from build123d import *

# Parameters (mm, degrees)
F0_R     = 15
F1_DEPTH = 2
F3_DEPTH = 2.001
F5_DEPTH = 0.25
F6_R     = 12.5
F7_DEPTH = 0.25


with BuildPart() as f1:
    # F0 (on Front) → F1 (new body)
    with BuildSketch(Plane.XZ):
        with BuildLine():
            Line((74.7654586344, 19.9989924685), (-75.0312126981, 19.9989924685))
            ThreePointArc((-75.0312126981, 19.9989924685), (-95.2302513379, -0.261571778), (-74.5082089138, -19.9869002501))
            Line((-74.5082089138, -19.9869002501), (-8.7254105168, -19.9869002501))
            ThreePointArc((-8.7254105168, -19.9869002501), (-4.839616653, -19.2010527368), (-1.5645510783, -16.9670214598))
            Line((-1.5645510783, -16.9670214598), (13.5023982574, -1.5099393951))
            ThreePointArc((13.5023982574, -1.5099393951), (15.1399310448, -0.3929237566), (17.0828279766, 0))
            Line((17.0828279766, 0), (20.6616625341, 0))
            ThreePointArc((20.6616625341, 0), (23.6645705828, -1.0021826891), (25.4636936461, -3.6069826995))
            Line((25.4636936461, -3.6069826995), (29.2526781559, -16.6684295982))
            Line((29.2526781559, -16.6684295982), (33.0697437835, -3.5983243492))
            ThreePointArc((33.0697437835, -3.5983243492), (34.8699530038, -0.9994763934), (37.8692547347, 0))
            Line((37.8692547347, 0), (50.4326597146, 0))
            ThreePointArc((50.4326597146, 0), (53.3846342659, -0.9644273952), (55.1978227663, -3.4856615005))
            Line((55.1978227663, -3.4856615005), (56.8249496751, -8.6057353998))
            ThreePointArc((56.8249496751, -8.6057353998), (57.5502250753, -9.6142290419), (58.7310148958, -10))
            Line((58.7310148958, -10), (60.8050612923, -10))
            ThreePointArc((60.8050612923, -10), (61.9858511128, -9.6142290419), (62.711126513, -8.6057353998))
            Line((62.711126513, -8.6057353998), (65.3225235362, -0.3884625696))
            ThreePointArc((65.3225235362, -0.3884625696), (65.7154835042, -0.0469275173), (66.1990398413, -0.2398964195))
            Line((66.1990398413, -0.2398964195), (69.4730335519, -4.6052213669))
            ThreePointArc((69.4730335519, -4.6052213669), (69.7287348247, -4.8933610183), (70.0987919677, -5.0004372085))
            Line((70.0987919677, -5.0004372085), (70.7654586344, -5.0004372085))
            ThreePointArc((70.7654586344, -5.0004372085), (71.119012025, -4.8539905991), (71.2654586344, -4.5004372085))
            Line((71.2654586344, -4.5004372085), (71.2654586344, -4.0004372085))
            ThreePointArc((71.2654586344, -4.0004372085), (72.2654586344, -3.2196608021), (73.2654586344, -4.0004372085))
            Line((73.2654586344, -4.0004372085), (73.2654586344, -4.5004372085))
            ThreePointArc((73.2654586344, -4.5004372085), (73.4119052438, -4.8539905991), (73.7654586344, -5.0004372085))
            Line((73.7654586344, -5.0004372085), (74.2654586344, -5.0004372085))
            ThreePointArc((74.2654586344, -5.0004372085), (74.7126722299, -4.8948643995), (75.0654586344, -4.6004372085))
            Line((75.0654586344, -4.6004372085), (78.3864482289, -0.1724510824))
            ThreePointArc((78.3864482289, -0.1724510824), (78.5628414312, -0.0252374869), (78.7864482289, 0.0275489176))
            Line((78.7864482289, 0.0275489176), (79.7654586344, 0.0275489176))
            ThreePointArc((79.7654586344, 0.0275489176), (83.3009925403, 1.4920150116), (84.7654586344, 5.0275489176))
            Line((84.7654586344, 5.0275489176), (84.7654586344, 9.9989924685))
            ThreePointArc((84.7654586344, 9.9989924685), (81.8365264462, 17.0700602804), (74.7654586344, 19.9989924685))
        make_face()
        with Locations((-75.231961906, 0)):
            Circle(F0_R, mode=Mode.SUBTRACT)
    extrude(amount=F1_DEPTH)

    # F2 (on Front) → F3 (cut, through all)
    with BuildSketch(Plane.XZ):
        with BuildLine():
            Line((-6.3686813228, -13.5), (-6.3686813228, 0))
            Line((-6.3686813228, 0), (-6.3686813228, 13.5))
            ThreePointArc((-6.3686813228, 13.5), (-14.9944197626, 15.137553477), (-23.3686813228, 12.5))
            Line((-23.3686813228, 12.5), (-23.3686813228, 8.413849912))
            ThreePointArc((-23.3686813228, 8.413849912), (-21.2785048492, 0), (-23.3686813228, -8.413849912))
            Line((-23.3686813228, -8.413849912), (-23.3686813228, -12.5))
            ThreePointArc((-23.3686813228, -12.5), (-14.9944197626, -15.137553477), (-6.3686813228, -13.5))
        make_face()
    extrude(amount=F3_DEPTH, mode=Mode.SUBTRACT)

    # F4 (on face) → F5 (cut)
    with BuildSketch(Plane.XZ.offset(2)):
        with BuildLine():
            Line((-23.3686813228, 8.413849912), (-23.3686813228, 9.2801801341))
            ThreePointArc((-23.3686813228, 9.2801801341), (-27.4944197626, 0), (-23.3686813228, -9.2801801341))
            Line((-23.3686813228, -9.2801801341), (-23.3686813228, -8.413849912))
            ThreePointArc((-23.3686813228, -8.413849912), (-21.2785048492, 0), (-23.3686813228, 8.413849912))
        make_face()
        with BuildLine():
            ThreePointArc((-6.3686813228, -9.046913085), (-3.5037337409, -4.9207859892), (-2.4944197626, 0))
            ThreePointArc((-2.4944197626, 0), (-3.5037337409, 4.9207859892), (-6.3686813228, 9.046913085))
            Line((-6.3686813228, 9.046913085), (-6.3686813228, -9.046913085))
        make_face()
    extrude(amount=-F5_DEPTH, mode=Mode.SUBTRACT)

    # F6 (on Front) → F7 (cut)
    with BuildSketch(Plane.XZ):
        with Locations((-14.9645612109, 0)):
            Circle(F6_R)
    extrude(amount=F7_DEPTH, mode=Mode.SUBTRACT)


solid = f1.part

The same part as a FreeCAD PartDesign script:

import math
import FreeCAD as App
import Part
import Sketcher

doc = App.newDocument("Part")
params = doc.addObject("Spreadsheet::Sheet", "Params")
for row, (alias, value) in enumerate([
    ("sketch1_diameter", "30 mm"),
    ("sketch1_radius", "20 mm"),
    ("sketch1_radius2", "10 mm"),
    ("sketch1_radius3", "5 mm"),
    ("sketch1_radius4", "2 mm"),
    ("pad1_length", "2 mm"),
    ("sketch2_radius", "18 mm"),
    ("sketch2_height", "27 mm"),
    ("sketch3_radius", "12.5 mm"),
    ("pocket2_length", "0.25 mm"),
    ("sketch4_diameter", "25 mm"),
    ("pocket3_length", "0.25 mm"),
], start=1):
    params.set(f"A{row}", alias)
    params.set(f"B{row}", "=" + value)
    params.setAlias(f"B{row}", alias)

body = doc.addObject("PartDesign::Body", "Body")

# Sketch on XZ plane
sketch1 = doc.addObject("Sketcher::SketchObject", "Sketch")
body.addObject(sketch1)
sketch1.AttachmentSupport = (doc.XZ_Plane, [""])
sketch1.MapMode = "FlatFace"
sketch1.addGeometry([
    Part.LineSegment(App.Vector(74.77, 20, 0), App.Vector(-75.03, 20, 0)),  # 0
    Part.ArcOfCircle(Part.Circle(App.Vector(-75.23, 0, 0), App.Vector(0, 0, 1), 20), math.radians(89), math.radians(272)),  # 1
    Part.LineSegment(App.Vector(-74.51, -19.99, 0), App.Vector(-8.73, -19.99, 0)),  # 2
    Part.ArcOfCircle(Part.Circle(App.Vector(-8.73, -9.99, 0), App.Vector(0, 0, 1), 10), math.radians(-90), math.radians(-44)),  # 3
    Part.LineSegment(App.Vector(-1.56, -16.97, 0), App.Vector(13.5, -1.51, 0)),  # 4
    Part.ArcOfCircle(Part.Circle(App.Vector(17.08, -5, 0), App.Vector(0, 0, 1), 5), math.radians(90), math.radians(136)),  # 5
    Part.LineSegment(App.Vector(17.08, 0, 0), App.Vector(20.66, 0, 0)),  # 6
    Part.ArcOfCircle(Part.Circle(App.Vector(20.66, -5, 0), App.Vector(0, 0, 1), 5), math.radians(16), math.radians(90)),  # 7
    Part.LineSegment(App.Vector(25.46, -3.61, 0), App.Vector(29.25, -16.67, 0)),  # 8
    Part.LineSegment(App.Vector(29.25, -16.67, 0), App.Vector(33.07, -3.6, 0)),  # 9
    Part.ArcOfCircle(Part.Circle(App.Vector(37.87, -5, 0), App.Vector(0, 0, 1), 5), math.radians(90), math.radians(164)),  # 10
    Part.LineSegment(App.Vector(37.87, 0, 0), App.Vector(50.43, 0, 0)),  # 11
    Part.ArcOfCircle(Part.Circle(App.Vector(50.43, -5, 0), App.Vector(0, 0, 1), 5), math.radians(18), math.radians(90)),  # 12
    Part.LineSegment(App.Vector(55.2, -3.49, 0), App.Vector(56.82, -8.61, 0)),  # 13
    Part.ArcOfCircle(Part.Circle(App.Vector(58.73, -8, 0), App.Vector(0, 0, 1), 2), math.radians(-162), math.radians(-90)),  # 14
    Part.LineSegment(App.Vector(58.73, -10, 0), App.Vector(60.81, -10, 0)),  # 15
    Part.ArcOfCircle(Part.Circle(App.Vector(60.81, -8, 0), App.Vector(0, 0, 1), 2), math.radians(-90), math.radians(-18)),  # 16
    Part.LineSegment(App.Vector(62.71, -8.61, 0), App.Vector(65.32, -0.39, 0)),  # 17
    Part.ArcOfCircle(Part.Circle(App.Vector(65.8, -0.54, 0), App.Vector(0, 0, 1), 0.5), math.radians(37), math.radians(162)),  # 18
    Part.LineSegment(App.Vector(66.2, -0.24, 0), App.Vector(69.47, -4.61, 0)),  # 19
    Part.ArcOfCircle(Part.Circle(App.Vector(70.1, -4.31, 0), App.Vector(0, 0, 1), 0.69), math.radians(-155), math.radians(-90)),  # 20
    Part.LineSegment(App.Vector(70.1, -5, 0), App.Vector(70.77, -5, 0)),  # 21
    Part.ArcOfCircle(Part.Circle(App.Vector(70.77, -4.5, 0), App.Vector(0, 0, 1), 0.5), math.radians(-90), math.radians(0)),  # 22
    Part.LineSegment(App.Vector(71.27, -4.5, 0), App.Vector(71.27, -4, 0)),  # 23
    Part.ArcOfCircle(Part.Circle(App.Vector(72.27, -4.25, 0), App.Vector(0, 0, 1), 1.03), math.radians(14), math.radians(166)),  # 24
    Part.LineSegment(App.Vector(73.27, -4, 0), App.Vector(73.27, -4.5, 0)),  # 25
    Part.ArcOfCircle(Part.Circle(App.Vector(73.77, -4.5, 0), App.Vector(0, 0, 1), 0.5), math.radians(180), math.radians(270)),  # 26
    Part.LineSegment(App.Vector(73.77, -5, 0), App.Vector(74.27, -5, 0)),  # 27
    Part.ArcOfCircle(Part.Circle(App.Vector(74.27, -4, 0), App.Vector(0, 0, 1), 1), math.radians(-90), math.radians(-37)),  # 28
    Part.LineSegment(App.Vector(75.07, -4.6, 0), App.Vector(78.39, -0.17, 0)),  # 29
    Part.ArcOfCircle(Part.Circle(App.Vector(78.79, -0.47, 0), App.Vector(0, 0, 1), 0.5), math.radians(90), math.radians(143)),  # 30
    Part.LineSegment(App.Vector(78.79, 0.03, 0), App.Vector(79.77, 0.03, 0)),  # 31
    Part.ArcOfCircle(Part.Circle(App.Vector(79.77, 5.03, 0), App.Vector(0, 0, 1), 5), math.radians(-90), math.radians(0)),  # 32
    Part.LineSegment(App.Vector(84.77, 5.03, 0), App.Vector(84.77, 10, 0)),  # 33
    Part.ArcOfCircle(Part.Circle(App.Vector(74.77, 10, 0), App.Vector(0, 0, 1), 10), math.radians(0), math.radians(90)),  # 34
    Part.Circle(App.Vector(-75.23, 0, 0), App.Vector(0, 0, 1), 15),  # 35
], False)
sketch1.addConstraint([
    Sketcher.Constraint("Coincident", 0, 2, 1, 1),
    Sketcher.Constraint("Coincident", 1, 2, 2, 1),
    Sketcher.Constraint("Tangent", 2, 2, 3, 1),
    Sketcher.Constraint("Tangent", 3, 2, 4, 1),
    Sketcher.Constraint("Tangent", 4, 2, 5, 2),
    Sketcher.Constraint("Tangent", 5, 1, 6, 1),
    Sketcher.Constraint("Tangent", 6, 2, 7, 2),
    Sketcher.Constraint("Tangent", 7, 1, 8, 1),
    Sketcher.Constraint("Coincident", 8, 2, 9, 1),
    Sketcher.Constraint("Tangent", 9, 2, 10, 2),
    Sketcher.Constraint("Tangent", 10, 1, 11, 1),
    Sketcher.Constraint("Tangent", 11, 2, 12, 2),
    Sketcher.Constraint("Tangent", 12, 1, 13, 1),
    Sketcher.Constraint("Tangent", 13, 2, 14, 1),
    Sketcher.Constraint("Tangent", 14, 2, 15, 1),
    Sketcher.Constraint("Tangent", 15, 2, 16, 1),
    Sketcher.Constraint("Tangent", 16, 2, 17, 1),
    Sketcher.Constraint("Tangent", 17, 2, 18, 2),
    Sketcher.Constraint("Tangent", 18, 1, 19, 1),
    Sketcher.Constraint("Coincident", 19, 2, 20, 1),
    Sketcher.Constraint("Tangent", 20, 2, 21, 1),
    Sketcher.Constraint("Tangent", 21, 2, 22, 1),
    Sketcher.Constraint("Tangent", 22, 2, 23, 1),
    Sketcher.Constraint("Coincident", 23, 2, 24, 2),
    Sketcher.Constraint("Coincident", 24, 1, 25, 1),
    Sketcher.Constraint("Tangent", 25, 2, 26, 1),
    Sketcher.Constraint("Tangent", 26, 2, 27, 1),
    Sketcher.Constraint("Tangent", 27, 2, 28, 1),
    Sketcher.Constraint("Tangent", 28, 2, 29, 1),
    Sketcher.Constraint("Tangent", 29, 2, 30, 2),
    Sketcher.Constraint("Tangent", 30, 1, 31, 1),
    Sketcher.Constraint("Tangent", 31, 2, 32, 1),
    Sketcher.Constraint("Tangent", 32, 2, 33, 1),
    Sketcher.Constraint("Tangent", 33, 2, 34, 1),
    Sketcher.Constraint("Tangent", 34, 2, 0, 1),
    Sketcher.Constraint("Horizontal", 0),
    Sketcher.Constraint("Horizontal", 2),
    Sketcher.Constraint("Horizontal", 6),
    Sketcher.Constraint("Horizontal", 11),
    Sketcher.Constraint("Horizontal", 15),
    Sketcher.Constraint("Horizontal", 21),
    Sketcher.Constraint("Vertical", 23),
    Sketcher.Constraint("Vertical", 25),
    Sketcher.Constraint("Horizontal", 27),
    Sketcher.Constraint("Horizontal", 31),
    Sketcher.Constraint("Vertical", 33),
    Sketcher.Constraint("Coincident", 35, 3, 1, 3),
    Sketcher.Constraint("Equal", 5, 7),
    Sketcher.Constraint("Equal", 7, 10),
    Sketcher.Constraint("Equal", 10, 12),
    Sketcher.Constraint("Equal", 14, 16),
    Sketcher.Constraint("Equal", 18, 22),
    Sketcher.Constraint("Equal", 22, 26),
    Sketcher.Constraint("Equal", 26, 30),
    Sketcher.Constraint("Equal", 12, 32),
    Sketcher.Constraint("Equal", 3, 34),
    Sketcher.Constraint("PointOnObject", 1, 3, -1),
    Sketcher.Constraint("PointOnObject", 5, 1, -1),
    Sketcher.Constraint("PointOnObject", 10, 1, -1),
    Sketcher.Constraint("Horizontal", 22, 3, 26, 3),
    Sketcher.Constraint("Horizontal", 13, 2, 16, 2),
    Sketcher.Constraint("Horizontal", 28, 3, 23, 2),
    Sketcher.Constraint("Horizontal", 23, 2, 24, 1),
    Sketcher.Constraint("Equal", 27, 23),
    Sketcher.Constraint("Diameter", 35, 30.0),
    Sketcher.Constraint("Radius", 1, 20.0),
    Sketcher.Constraint("Radius", 3, 10.0),
    Sketcher.Constraint("Radius", 5, 5.0),
    Sketcher.Constraint("Radius", 14, 2.0),
    Sketcher.Constraint("Radius", 28, 1.0),
    Sketcher.Constraint("Radius", 18, 0.5),
    Sketcher.Constraint("DistanceY", 14, 3, -1, 1, 8.0),
    Sketcher.Constraint("Radius", 20, 0.693),
    Sketcher.Constraint("DistanceX", 22, 3, 26, 3, 3.0),
    Sketcher.Constraint("DistanceX", 26, 3, 32, 3, 6.0),
    Sketcher.Constraint("DistanceX", 18, 3, 18, 1, 0.4),
    Sketcher.Constraint("DistanceX", 27, 2, 28, 2, 0.8),
    Sketcher.Constraint("DistanceY", 22, 3, 24, 3, 0.25),
    Sketcher.Constraint("DistanceX", 2, 1, 2, 2, 65.782798),
    Sketcher.Constraint("Distance", 13, 5.372402),
    Sketcher.Constraint("DistanceX", 0, 2, 0, 1, 149.796671),
    Sketcher.Constraint("DistanceX", 31, 1, 31, 2, 0.97901),
    Sketcher.Constraint("DistanceY", 3, 3, -1, 1, 9.9869),
    Sketcher.Constraint("DistanceX", -1, 1, 4, 2, 13.502398),
    Sketcher.Constraint("DistanceX", 12, 3, 16, 3, 10.372402),
    Sketcher.Constraint("DistanceX", 7, 3, 16, 3, 40.143399),
    Sketcher.Constraint("DistanceX", 12, 3, 22, 3, 20.332799),
    Sketcher.Constraint("Distance", 8, 13.599919),
    Sketcher.Constraint("Distance", 9, 13.61608),
    Sketcher.Constraint("DistanceX", 6, 1, 6, 2, 3.578835),
    Sketcher.Constraint("DistanceX", 11, 1, 11, 2, 12.563405),
    Sketcher.Constraint("DistanceX", 21, 1, 21, 2, 0.666667),
    Sketcher.Constraint("DistanceY", 33, 1, 33, 2, 4.971444),
    Sketcher.Constraint("DistanceX", 1, 3, -1, 1, 75.231962),
    Sketcher.Constraint("DistanceX", -1, 1, 18, 3, 65.79904),
])
sketch1.setExpression("Constraints[64]", "Params.sketch1_diameter")
sketch1.setExpression("Constraints[65]", "Params.sketch1_radius")
sketch1.setExpression("Constraints[66]", "Params.sketch1_radius2")
sketch1.setExpression("Constraints[67]", "Params.sketch1_radius3")
sketch1.setExpression("Constraints[68]", "Params.sketch1_radius4")
pad1 = doc.addObject("PartDesign::Pad", "Pad")
body.addObject(pad1)
pad1.Profile = sketch1
pad1.setExpression("Length", "Params.pad1_length")

# Sketch on XZ plane
sketch2 = doc.addObject("Sketcher::SketchObject", "Sketch001")
body.addObject(sketch2)
sketch2.AttachmentSupport = (doc.XZ_Plane, [""])
sketch2.MapMode = "FlatFace"
sketch2.addGeometry([
    Part.LineSegment(App.Vector(-6.4, -13.5, 0), App.Vector(-6.4, 13.5, 0)),  # 0
    Part.ArcOfCircle(Part.Circle(App.Vector(-13.9, -2.8, 0), App.Vector(0, 0, 1), 18), math.radians(65), math.radians(122)),  # 1
    Part.LineSegment(App.Vector(-23.4, 12.5, 0), App.Vector(-23.4, 8.4, 0)),  # 2
    Part.ArcOfCircle(Part.Circle(App.Vector(-39.3, 0, 0), App.Vector(0, 0, 1), 18), math.radians(-28), math.radians(28)),  # 3
    Part.LineSegment(App.Vector(-23.4, -8.4, 0), App.Vector(-23.4, -12.5, 0)),  # 4
    Part.ArcOfCircle(Part.Circle(App.Vector(-13.9, 2.8, 0), App.Vector(0, 0, 1), 18), math.radians(-122), math.radians(-65)),  # 5
], False)
sketch2.addConstraint([
    Sketcher.Constraint("Coincident", 0, 2, 1, 1),
    Sketcher.Constraint("Coincident", 1, 2, 2, 1),
    Sketcher.Constraint("Coincident", 2, 2, 3, 2),
    Sketcher.Constraint("Coincident", 3, 1, 4, 1),
    Sketcher.Constraint("Coincident", 4, 2, 5, 1),
    Sketcher.Constraint("Coincident", 5, 2, 0, 1),
    Sketcher.Constraint("Vertical", 0),
    Sketcher.Constraint("Vertical", 2),
    Sketcher.Constraint("Vertical", 4),
    Sketcher.Constraint("Equal", 1, 5),
    Sketcher.Constraint("Symmetric", 1, 3, 5, 3, -1),
    Sketcher.Constraint("Symmetric", 2, 2, 3, 1, -1),
    Sketcher.Constraint("Radius", 1, 18.0),
    Sketcher.Constraint("DistanceY", 0, 1, 0, 2, 27.0),
    Sketcher.Constraint("DistanceX", 1, 2, 0, 2, 17.0),
    Sketcher.Constraint("DistanceY", 1, 2, 0, 2, 1.0),
    Sketcher.Constraint("Radius", 3, 17.979752),
    Sketcher.Constraint("DistanceY", 2, 2, 2, 1, 4.08615),
    Sketcher.Constraint("DistanceX", 0, 2, -1, 1, 6.368681),
])
sketch2.setExpression("Constraints[12]", "Params.sketch2_radius")
sketch2.setExpression("Constraints[13]", "Params.sketch2_height")
pocket1 = doc.addObject("PartDesign::Pocket", "Pocket")
body.addObject(pocket1)
pocket1.Profile = sketch2
pocket1.Type = "ThroughAll"
pocket1.Reversed = True

# Sketch on XZ plane
sketch3 = doc.addObject("Sketcher::SketchObject", "Sketch002")
body.addObject(sketch3)
sketch3.AttachmentSupport = (doc.XZ_Plane, [""])
sketch3.MapMode = "FlatFace"
sketch3.AttachmentOffset = App.Placement(App.Vector(0, 0, 2), App.Rotation())
sketch3.addGeometry([
    Part.LineSegment(App.Vector(-23.4, 8.4, 0), App.Vector(-23.4, 9.3, 0)),  # 0
    Part.ArcOfCircle(Part.Circle(App.Vector(-15, 0, 0), App.Vector(0, 0, 1), 12.5), math.radians(132), math.radians(228)),  # 1
    Part.LineSegment(App.Vector(-23.4, -9.3, 0), App.Vector(-23.4, -8.4, 0)),  # 2
    Part.ArcOfCircle(Part.Circle(App.Vector(-39.3, 0, 0), App.Vector(0, 0, 1), 18), math.radians(-28), math.radians(28)),  # 3
    Part.ArcOfCircle(Part.Circle(App.Vector(-15, 0, 0), App.Vector(0, 0, 1), 12.5), math.radians(-46), math.radians(0)),  # 4
    Part.ArcOfCircle(Part.Circle(App.Vector(-15, 0, 0), App.Vector(0, 0, 1), 12.5), math.radians(0), math.radians(46)),  # 5
    Part.LineSegment(App.Vector(-6.4, 9, 0), App.Vector(-6.4, -9, 0)),  # 6
], False)
sketch3.addConstraint([
    Sketcher.Constraint("Coincident", 0, 2, 1, 1),
    Sketcher.Constraint("Coincident", 1, 2, 2, 1),
    Sketcher.Constraint("Coincident", 2, 2, 3, 1),
    Sketcher.Constraint("Coincident", 3, 2, 0, 1),
    Sketcher.Constraint("Tangent", 4, 2, 5, 1),
    Sketcher.Constraint("Coincident", 5, 2, 6, 1),
    Sketcher.Constraint("Coincident", 6, 2, 4, 1),
    Sketcher.Constraint("Vertical", 0),
    Sketcher.Constraint("Vertical", 2),
    Sketcher.Constraint("Vertical", 6),
    Sketcher.Constraint("Coincident", 4, 3, 1, 3),
    Sketcher.Constraint("Equal", 1, 4),
    Sketcher.Constraint("Equal", 4, 5),
    Sketcher.Constraint("Symmetric", 0, 2, 1, 2, -1),
    Sketcher.Constraint("PointOnObject", 3, 3, -1),
    Sketcher.Constraint("PointOnObject", 4, 2, -1),
    Sketcher.Constraint("Radius", 1, 12.5),
    Sketcher.Constraint("DistanceX", 0, 2, 5, 2, 17.0),
    Sketcher.Constraint("Radius", 3, 17.979752),
    Sketcher.Constraint("DistanceY", 0, 1, 0, 2, 0.86633),
    Sketcher.Constraint("DistanceY", 2, 2, 3, 2, 16.8277),
    Sketcher.Constraint("DistanceX", 1, 3, -1, 1, 14.99442),
])
sketch3.setExpression("Constraints[16]", "Params.sketch3_radius")
pocket2 = doc.addObject("PartDesign::Pocket", "Pocket001")
body.addObject(pocket2)
pocket2.Profile = sketch3
pocket2.setExpression("Length", "Params.pocket2_length")

# Sketch on XZ plane
sketch4 = doc.addObject("Sketcher::SketchObject", "Sketch003")
body.addObject(sketch4)
sketch4.AttachmentSupport = (doc.XZ_Plane, [""])
sketch4.MapMode = "FlatFace"
sketch4.addGeometry(Part.Circle(App.Vector(-15, 0, 0), App.Vector(0, 0, 1), 12), False)
sketch4.addConstraint([
    Sketcher.Constraint("PointOnObject", 0, 3, -1),
    Sketcher.Constraint("Diameter", 0, 25.0),
    Sketcher.Constraint("DistanceX", 0, 3, -1, 1, 14.964561),
])
sketch4.setExpression("Constraints[1]", "Params.sketch4_diameter")
pocket3 = doc.addObject("PartDesign::Pocket", "Pocket002")
body.addObject(pocket3)
pocket3.Profile = sketch4
pocket3.setExpression("Length", "Params.pocket3_length")
pocket3.Reversed = True

doc.recompute()
